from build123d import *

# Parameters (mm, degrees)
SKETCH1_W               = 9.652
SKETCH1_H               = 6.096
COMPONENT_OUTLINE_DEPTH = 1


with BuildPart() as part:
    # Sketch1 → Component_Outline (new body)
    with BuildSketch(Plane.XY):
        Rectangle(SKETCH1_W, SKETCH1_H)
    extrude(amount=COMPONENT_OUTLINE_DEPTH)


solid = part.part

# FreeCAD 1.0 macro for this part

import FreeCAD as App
import Part
import Sketcher
Q = App.Units.Quantity

doc = App.newDocument("Part")
body = doc.addObject("PartDesign::Body", "Body")

# Sketch on XY plane
sketch1 = body.newObject("Sketcher::SketchObject", "Sketch")
sketch1.AttachmentSupport = (doc.getObject("XY_Plane"), [""])
sketch1.MapMode = "FlatFace"
sketch1.addGeometry(Part.LineSegment(App.Vector(-4.826, 3.048, 0), App.Vector(-4.826, -3.048, 0)), False)
sketch1.addGeometry(Part.LineSegment(App.Vector(-4.826, -3.048, 0), App.Vector(4.826, -3.048, 0)), False)
sketch1.addGeometry(Part.LineSegment(App.Vector(4.826, -3.048, 0), App.Vector(4.826, 3.048, 0)), False)
sketch1.addGeometry(Part.LineSegment(App.Vector(4.826, 3.048, 0), App.Vector(-4.826, 3.048, 0)), False)
sketch1.addConstraint(Sketcher.Constraint("Coincident", 0, 2, 1, 1))
sketch1.addConstraint(Sketcher.Constraint("Coincident", 1, 2, 2, 1))
sketch1.addConstraint(Sketcher.Constraint("Coincident", 2, 2, 3, 1))
sketch1.addConstraint(Sketcher.Constraint("Coincident", 3, 2, 0, 1))
sketch1.addConstraint(Sketcher.Constraint("Vertical", 0))
sketch1.addConstraint(Sketcher.Constraint("Horizontal", 1))
sketch1.addConstraint(Sketcher.Constraint("Vertical", 2))
sketch1.addConstraint(Sketcher.Constraint("Horizontal", 3))
sketch1.addConstraint(Sketcher.Constraint("Symmetric", 0, 2, 2, 2, -1, 1))
sketch1.addConstraint(Sketcher.Constraint("DistanceX", 1, 1, 1, 2, Q("0.38 in")))
sketch1.addConstraint(Sketcher.Constraint("DistanceY", 0, 2, 0, 1, Q("0.24 in")))
pad1 = body.newObject("PartDesign::Pad", "Pad")
pad1.Profile = sketch1
pad1.Length = 1

doc.recompute()
